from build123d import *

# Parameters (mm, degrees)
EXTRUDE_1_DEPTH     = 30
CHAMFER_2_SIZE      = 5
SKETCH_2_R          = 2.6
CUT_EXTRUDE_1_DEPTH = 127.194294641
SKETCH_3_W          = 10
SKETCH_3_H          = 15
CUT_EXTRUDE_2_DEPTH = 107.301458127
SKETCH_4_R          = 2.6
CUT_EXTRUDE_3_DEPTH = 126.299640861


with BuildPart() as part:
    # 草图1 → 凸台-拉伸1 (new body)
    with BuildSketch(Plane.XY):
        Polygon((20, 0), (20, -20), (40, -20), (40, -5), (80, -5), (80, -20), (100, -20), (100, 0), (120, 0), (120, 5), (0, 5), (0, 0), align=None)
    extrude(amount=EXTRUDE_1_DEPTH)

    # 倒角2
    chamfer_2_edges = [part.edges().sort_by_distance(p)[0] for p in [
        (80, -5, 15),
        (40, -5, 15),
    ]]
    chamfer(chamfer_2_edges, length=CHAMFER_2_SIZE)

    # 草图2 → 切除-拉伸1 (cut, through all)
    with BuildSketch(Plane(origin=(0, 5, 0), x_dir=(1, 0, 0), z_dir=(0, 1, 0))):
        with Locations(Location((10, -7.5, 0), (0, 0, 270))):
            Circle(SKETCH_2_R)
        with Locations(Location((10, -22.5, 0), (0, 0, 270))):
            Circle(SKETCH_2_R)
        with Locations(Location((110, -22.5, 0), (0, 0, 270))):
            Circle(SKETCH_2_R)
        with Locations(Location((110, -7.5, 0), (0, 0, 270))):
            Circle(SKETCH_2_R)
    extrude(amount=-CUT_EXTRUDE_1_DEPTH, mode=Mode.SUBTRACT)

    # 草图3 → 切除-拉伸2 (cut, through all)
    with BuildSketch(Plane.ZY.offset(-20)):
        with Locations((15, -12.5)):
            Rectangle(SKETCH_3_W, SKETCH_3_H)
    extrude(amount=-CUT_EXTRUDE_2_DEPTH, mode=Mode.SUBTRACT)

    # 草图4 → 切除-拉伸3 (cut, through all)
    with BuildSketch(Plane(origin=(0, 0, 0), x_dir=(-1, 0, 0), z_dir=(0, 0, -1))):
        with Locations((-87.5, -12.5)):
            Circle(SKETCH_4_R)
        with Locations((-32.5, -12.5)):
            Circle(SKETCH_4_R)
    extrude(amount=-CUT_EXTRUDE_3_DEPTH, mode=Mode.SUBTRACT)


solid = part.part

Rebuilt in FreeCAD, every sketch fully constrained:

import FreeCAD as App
import Part
import Sketcher

V = App.Vector


def edges_at(feature, points):
    """Names of the edges that pass closest to the given points."""
    edges = feature.Shape.Edges
    near = lambda p: min(range(len(edges)), key=lambda i: edges[i].distToShape(Part.Vertex(*p))[0])
    return sorted({f"Edge{near(p) + 1}" for p in points})


def add_polygon(sketch, points):
    """Adds a closed chain of lines whose ends are joined by coincident constraints."""
    first, n = sketch.GeometryCount, len(points)
    for a, b in zip(points, points[1:] + points[:1]):
        sketch.addGeometry(Part.LineSegment(App.Vector(*a, 0), App.Vector(*b, 0)), False)
    for i in range(n):
        sketch.addConstraint(Sketcher.Constraint("Coincident", first + i, 2, first + (i + 1) % n, 1))

doc = App.newDocument("Part")
body = doc.addObject("PartDesign::Body", "Body")

# Sketch on XY plane
sketch1 = body.newObject("Sketcher::SketchObject", "Sketch")
sketch1.AttachmentSupport = (doc.getObject("XY_Plane"), [""])
sketch1.MapMode = "FlatFace"
add_polygon(sketch1, [(20, 0), (20, -20), (40, -20), (40, -5), (80, -5), (80, -20), (100, -20), (100, 0), (120, 0), (120, 5), (0, 5), (0, 0)])  # lines 0-11
sketch1.addConstraint([
    Sketcher.Constraint("Vertical", 0),
    Sketcher.Constraint("Horizontal", 1),
    Sketcher.Constraint("Vertical", 2),
    Sketcher.Constraint("Horizontal", 3),
    Sketcher.Constraint("Vertical", 4),
    Sketcher.Constraint("Horizontal", 5),
    Sketcher.Constraint("Vertical", 6),
    Sketcher.Constraint("Horizontal", 7),
    Sketcher.Constraint("Vertical", 8),
    Sketcher.Constraint("Horizontal", 9),
    Sketcher.Constraint("Vertical", 10),
    Sketcher.Constraint("Horizontal", 11),
    Sketcher.Constraint("Coincident", 10, 2, -1, 1),
    Sketcher.Constraint("PointOnObject", 6, 2, -1),
    Sketcher.Constraint("Horizontal", 1, 2, 4, 2),
    Sketcher.Constraint("Equal", 1, 5),
    Sketcher.Constraint("Equal", 5, 7),
    Sketcher.Constraint("Equal", 7, 11),
    Sketcher.Constraint("Equal", 11, 0),
    Sketcher.Constraint("DistanceX", 1, 1, 1, 2, 20.0),
    Sketcher.Constraint("DistanceX", 3, 1, 3, 2, 40.0),
    Sketcher.Constraint("DistanceY", 2, 1, 2, 2, 15.0),
    Sketcher.Constraint("DistanceY", 8, 1, 8, 2, 5.0),
])
pad1 = body.newObject("PartDesign::Pad", "Pad")
pad1.Profile = sketch1
pad1.Length = 30
doc.recompute()

chamfer = body.newObject("PartDesign::Chamfer", "Chamfer")
chamfer.Base = (pad1, edges_at(pad1, [(80, -5, 15), (40, -5, 15)]))
chamfer.Size = 5

# Sketch on XZ plane
sketch2 = body.newObject("Sketcher::SketchObject", "Sketch001")
sketch2.AttachmentSupport = (doc.getObject("XZ_Plane"), [""])
sketch2.MapMode = "FlatFace"
sketch2.AttachmentOffset = App.Placement(V(0, 0, -5), App.Rotation())
sketch2.addGeometry([
    Part.Circle(V(10, 7.5, 0), V(0, 0, 1), 2.6),
    Part.Circle(V(10, 22.5, 0), V(0, 0, 1), 2.6),
    Part.Circle(V(110, 22.5, 0), V(0, 0, 1), 2.6),
    Part.Circle(V(110, 7.5, 0), V(0, 0, 1), 2.6),
], False)
sketch2.addConstraint([
    Sketcher.Constraint("Equal", 0, 1),
    Sketcher.Constraint("Equal", 1, 2),
    Sketcher.Constraint("Equal", 2, 3),
    Sketcher.Constraint("Horizontal", 1, 3, 2, 3),
    Sketcher.Constraint("Horizontal", 0, 3, 3, 3),
    Sketcher.Constraint("Vertical", 0, 3, 1, 3),
    Sketcher.Constraint("Vertical", 2, 3, 3, 3),
    Sketcher.Constraint("Diameter", 0, 5.2),
    Sketcher.Constraint("DistanceX", -1, 1, 0, 3, 10.0),
    Sketcher.Constraint("DistanceX", -1, 1, 2, 3, 110.0),
    Sketcher.Constraint("DistanceY", 0, 3, 1, 3, 15.0),
    Sketcher.Constraint("DistanceY", -1, 1, 0, 3, 7.5),
])
pocket1 = body.newObject("PartDesign::Pocket", "Pocket")
pocket1.Profile = sketch2
pocket1.Type = "ThroughAll"
pocket1.Reversed = True

# Sketch on YZ plane
sketch3 = body.newObject("Sketcher::SketchObject", "Sketch002")
sketch3.AttachmentSupport = (doc.getObject("YZ_Plane"), [""])
sketch3.MapMode = "FlatFace"
sketch3.AttachmentOffset = App.Placement(V(0, 0, 20), App.Rotation())
add_polygon(sketch3, [(-5, 10), (-20, 10), (-20, 20), (-5, 20)])  # lines 0-3
sketch3.addConstraint([
    Sketcher.Constraint("Horizontal", 0),
    Sketcher.Constraint("Vertical", 1),
    Sketcher.Constraint("Horizontal", 2),
    Sketcher.Constraint("Vertical", 3),
    Sketcher.Constraint("DistanceX", 0, 2, 0, 1, 15.0),
    Sketcher.Constraint("DistanceY", 1, 1, 1, 2, 10.0),
    Sketcher.Constraint("DistanceX", 0, 2, -1, 1, 20.0),
    Sketcher.Constraint("DistanceY", -1, 1, 0, 2, 10.0),
])
pocket2 = body.newObject("PartDesign::Pocket", "Pocket001")
pocket2.Profile = sketch3
pocket2.Type = "ThroughAll"
pocket2.Reversed = True

# Sketch on XY plane
sketch4 = body.newObject("Sketcher::SketchObject", "Sketch003")
sketch4.AttachmentSupport = (doc.getObject("XY_Plane"), [""])
sketch4.MapMode = "FlatFace"
sketch4.addGeometry([
    Part.Circle(V(87.5, -12.5, 0), V(0, 0, 1), 2.6),
    Part.Circle(V(32.5, -12.5, 0), V(0, 0, 1), 2.6),
], False)
sketch4.addConstraint([
    Sketcher.Constraint("Equal", 0, 1),
    Sketcher.Constraint("Horizontal", 0, 3, 1, 3),
    Sketcher.Constraint("Diameter", 0, 5.2),
    Sketcher.Constraint("DistanceX", 1, 3, 0, 3, 55.0),
    Sketcher.Constraint("DistanceX", -1, 1, 0, 3, 87.5),
    Sketcher.Constraint("DistanceY", 0, 3, -1, 1, 12.5),
])
pocket3 = body.newObject("PartDesign::Pocket", "Pocket002")
pocket3.Profile = sketch4
pocket3.Type = "ThroughAll"
pocket3.Reversed = True

doc.recompute()
